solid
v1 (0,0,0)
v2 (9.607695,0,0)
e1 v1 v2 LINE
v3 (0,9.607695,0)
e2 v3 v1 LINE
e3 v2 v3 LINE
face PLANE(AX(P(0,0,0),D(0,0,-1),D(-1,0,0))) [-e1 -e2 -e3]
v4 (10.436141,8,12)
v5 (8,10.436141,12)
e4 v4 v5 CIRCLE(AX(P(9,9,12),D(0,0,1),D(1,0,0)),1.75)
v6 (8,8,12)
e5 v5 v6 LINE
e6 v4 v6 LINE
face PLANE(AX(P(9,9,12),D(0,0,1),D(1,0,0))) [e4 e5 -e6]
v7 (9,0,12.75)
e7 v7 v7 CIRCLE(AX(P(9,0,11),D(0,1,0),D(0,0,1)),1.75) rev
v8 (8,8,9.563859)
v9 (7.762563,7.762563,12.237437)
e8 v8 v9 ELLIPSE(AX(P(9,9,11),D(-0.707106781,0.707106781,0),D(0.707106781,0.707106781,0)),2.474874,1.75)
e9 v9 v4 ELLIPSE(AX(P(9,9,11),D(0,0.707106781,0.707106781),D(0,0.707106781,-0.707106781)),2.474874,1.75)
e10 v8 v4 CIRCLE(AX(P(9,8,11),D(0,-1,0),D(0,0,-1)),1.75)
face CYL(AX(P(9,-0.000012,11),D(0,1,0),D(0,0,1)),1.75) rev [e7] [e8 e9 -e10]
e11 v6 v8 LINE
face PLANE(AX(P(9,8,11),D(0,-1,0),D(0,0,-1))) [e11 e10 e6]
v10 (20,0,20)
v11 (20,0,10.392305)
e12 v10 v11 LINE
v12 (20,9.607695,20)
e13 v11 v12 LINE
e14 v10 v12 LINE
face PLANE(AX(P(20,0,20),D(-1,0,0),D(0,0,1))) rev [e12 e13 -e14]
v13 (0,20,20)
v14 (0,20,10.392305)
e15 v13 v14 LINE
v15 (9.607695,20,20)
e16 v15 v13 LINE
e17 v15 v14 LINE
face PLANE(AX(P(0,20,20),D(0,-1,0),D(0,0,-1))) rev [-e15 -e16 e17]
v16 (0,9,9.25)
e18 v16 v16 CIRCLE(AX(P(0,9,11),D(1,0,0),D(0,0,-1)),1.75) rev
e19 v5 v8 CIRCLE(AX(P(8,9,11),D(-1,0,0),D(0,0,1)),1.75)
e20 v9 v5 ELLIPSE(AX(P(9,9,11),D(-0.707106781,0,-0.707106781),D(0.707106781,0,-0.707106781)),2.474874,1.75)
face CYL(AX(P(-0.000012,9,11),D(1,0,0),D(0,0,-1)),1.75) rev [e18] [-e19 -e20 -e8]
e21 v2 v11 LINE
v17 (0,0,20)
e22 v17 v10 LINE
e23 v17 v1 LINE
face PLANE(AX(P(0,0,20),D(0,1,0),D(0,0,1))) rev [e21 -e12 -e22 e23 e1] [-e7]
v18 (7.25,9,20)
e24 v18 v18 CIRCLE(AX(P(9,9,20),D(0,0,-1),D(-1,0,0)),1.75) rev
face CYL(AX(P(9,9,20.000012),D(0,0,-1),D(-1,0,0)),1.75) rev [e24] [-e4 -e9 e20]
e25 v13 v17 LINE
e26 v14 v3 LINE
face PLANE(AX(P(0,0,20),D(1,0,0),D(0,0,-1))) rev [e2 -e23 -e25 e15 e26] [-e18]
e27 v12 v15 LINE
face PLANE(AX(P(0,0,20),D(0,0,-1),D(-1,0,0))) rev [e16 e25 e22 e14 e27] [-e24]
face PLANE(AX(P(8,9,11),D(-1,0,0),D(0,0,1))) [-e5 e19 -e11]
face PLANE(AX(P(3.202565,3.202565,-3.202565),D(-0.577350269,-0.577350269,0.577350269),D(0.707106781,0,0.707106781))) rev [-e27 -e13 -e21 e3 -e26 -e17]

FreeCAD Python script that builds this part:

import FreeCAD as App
import Part
import Sketcher

V = App.Vector

doc = App.newDocument("Part")
body = doc.addObject("PartDesign::Body", "Body")

sketch1 = doc.addObject("Sketcher::SketchObject", "Sketch")
body.addObject(sketch1)
sketch1.AttachmentSupport = (doc.XY_Plane, [""])
sketch1.MapMode = "FlatFace"
sketch1.addGeometry(Part.LineSegment(V(0, 20, 0), V(0, 0, 0)), False)
sketch1.addGeometry(Part.LineSegment(V(0, 0, 0), V(20, 0, 0)), False)
sketch1.addGeometry(Part.LineSegment(V(20, 0, 0), V(20, 20, 0)), False)
sketch1.addGeometry(Part.LineSegment(V(20, 20, 0), V(0, 20, 0)), False)
sketch1.addConstraint(Sketcher.Constraint("Coincident", 0, 2, 1, 1))
sketch1.addConstraint(Sketcher.Constraint("Coincident", 1, 2, 2, 1))
sketch1.addConstraint(Sketcher.Constraint("Coincident", 2, 2, 3, 1))
sketch1.addConstraint(Sketcher.Constraint("Coincident", 3, 2, 0, 1))
sketch1.addConstraint(Sketcher.Constraint("Vertical", 0))
sketch1.addConstraint(Sketcher.Constraint("Horizontal", 1))
sketch1.addConstraint(Sketcher.Constraint("Vertical", 2))
sketch1.addConstraint(Sketcher.Constraint("Horizontal", 3))
sketch1.addConstraint(Sketcher.Constraint("Coincident", 0, 2, -1, 1))
sketch1.addConstraint(Sketcher.Constraint("Equal", 3, 0))
sketch1.addConstraint(Sketcher.Constraint("DistanceX", 1, 1, 1, 2, 20.0))
pad1 = doc.addObject("PartDesign::Pad", "Pad")
body.addObject(pad1)
pad1.Profile = sketch1
pad1.Length = 20

sketch2 = doc.addObject("Sketcher::SketchObject", "Sketch001")
body.addObject(sketch2)
sketch2.Placement = App.Placement(V(6.666667, 6.666667, -6.666667), App.Rotation(V(0.816496581, -0.40824829, 0.40824829), V(0, 0.707106781, 0.707106781), V(-0.577350269, -0.577350269, 0.577350269), "ZXY"))
sketch2.addGeometry(Part.LineSegment(V(-8, 28, 0), V(-8, 0, 0)), False)
sketch2.addGeometry(Part.LineSegment(V(-8, 0, 0), V(24, 0, 0)), False)
sketch2.addGeometry(Part.LineSegment(V(24, 0, 0), V(24, 28, 0)), False)
sketch2.addGeometry(Part.LineSegment(V(24, 28, 0), V(-8, 28, 0)), False)
sketch2.addConstraint(Sketcher.Constraint("Coincident", 0, 2, 1, 1))
sketch2.addConstraint(Sketcher.Constraint("Coincident", 1, 2, 2, 1))
sketch2.addConstraint(Sketcher.Constraint("Coincident", 2, 2, 3, 1))
sketch2.addConstraint(Sketcher.Constraint("Coincident", 3, 2, 0, 1))
sketch2.addConstraint(Sketcher.Constraint("Vertical", 0))
sketch2.addConstraint(Sketcher.Constraint("Horizontal", 1))
sketch2.addConstraint(Sketcher.Constraint("Vertical", 2))
sketch2.addConstraint(Sketcher.Constraint("Horizontal", 3))
sketch2.addConstraint(Sketcher.Constraint("PointOnObject", 0, 2, -1))
sketch2.addConstraint(Sketcher.Constraint("DistanceY", 0, 2, 0, 1, 28.284271))
sketch2.addConstraint(Sketcher.Constraint("DistanceX", 1, 1, 1, 2, 32.659863))
sketch2.addConstraint(Sketcher.Constraint("DistanceX", 0, 2, -1, 1, 8.164966))
pocket1 = doc.addObject("PartDesign::Pocket", "Pocket")
body.addObject(pocket1)
pocket1.Profile = sketch2
pocket1.Type = "TwoLengths"
pocket1.Length = 6
pocket1.Length2 = 12.547005
pocket1.Reversed = True

sketch3 = doc.addObject("Sketcher::SketchObject", "Sketch002")
body.addObject(sketch3)
sketch3.AttachmentSupport = (doc.XZ_Plane, [""])
sketch3.MapMode = "FlatFace"
sketch3.addGeometry(Part.Circle(V(9, 11, 0), V(0, 0, 1), 1.8), False)
sketch3.addConstraint(Sketcher.Constraint("Diameter", 0, 3.5))
sketch3.addConstraint(Sketcher.Constraint("DistanceX", -1, 1, 0, 3, 9.0))
sketch3.addConstraint(Sketcher.Constraint("DistanceY", -1, 1, 0, 3, 11.0))
pocket2 = doc.addObject("PartDesign::Pocket", "Pocket001")
body.addObject(pocket2)
pocket2.Profile = sketch3
pocket2.Type = "TwoLengths"
pocket2.Length = 1
pocket2.Length2 = 8
pocket2.Reversed = True

sketch4 = doc.addObject("Sketcher::SketchObject", "Sketch003")
body.addObject(sketch4)
sketch4.AttachmentSupport = (doc.XY_Plane, [""])
sketch4.MapMode = "FlatFace"
sketch4.AttachmentOffset = App.Placement(V(0, 0, 20), App.Rotation())
sketch4.addGeometry(Part.Circle(V(9, 9, 0), V(0, 0, 1), 1.8), False)
sketch4.addConstraint(Sketcher.Constraint("Diameter", 0, 3.5))
sketch4.addConstraint(Sketcher.Constraint("DistanceX", -1, 1, 0, 3, 9.0))
sketch4.addConstraint(Sketcher.Constraint("DistanceY", -1, 1, 0, 3, 9.0))
pocket3 = doc.addObject("PartDesign::Pocket", "Pocket002")
body.addObject(pocket3)
pocket3.Profile = sketch4
pocket3.Type = "TwoLengths"
pocket3.Length = 1
pocket3.Length2 = 8
pocket3.Reversed = True

sketch5 = doc.addObject("Sketcher::SketchObject", "Sketch004")
body.addObject(sketch5)
sketch5.AttachmentSupport = (doc.YZ_Plane, [""])
sketch5.MapMode = "FlatFace"
sketch5.addGeometry(Part.Circle(V(9, 11, 0), V(0, 0, 1), 1.8), False)
sketch5.addConstraint(Sketcher.Constraint("Diameter", 0, 3.5))
sketch5.addConstraint(Sketcher.Constraint("DistanceX", -1, 1, 0, 3, 9.0))
sketch5.addConstraint(Sketcher.Constraint("DistanceY", -1, 1, 0, 3, 11.0))
pocket4 = doc.addObject("PartDesign::Pocket", "Pocket003")
body.addObject(pocket4)
pocket4.Profile = sketch5
pocket4.Type = "TwoLengths"
pocket4.Length = 1
pocket4.Length2 = 8

doc.recompute()
